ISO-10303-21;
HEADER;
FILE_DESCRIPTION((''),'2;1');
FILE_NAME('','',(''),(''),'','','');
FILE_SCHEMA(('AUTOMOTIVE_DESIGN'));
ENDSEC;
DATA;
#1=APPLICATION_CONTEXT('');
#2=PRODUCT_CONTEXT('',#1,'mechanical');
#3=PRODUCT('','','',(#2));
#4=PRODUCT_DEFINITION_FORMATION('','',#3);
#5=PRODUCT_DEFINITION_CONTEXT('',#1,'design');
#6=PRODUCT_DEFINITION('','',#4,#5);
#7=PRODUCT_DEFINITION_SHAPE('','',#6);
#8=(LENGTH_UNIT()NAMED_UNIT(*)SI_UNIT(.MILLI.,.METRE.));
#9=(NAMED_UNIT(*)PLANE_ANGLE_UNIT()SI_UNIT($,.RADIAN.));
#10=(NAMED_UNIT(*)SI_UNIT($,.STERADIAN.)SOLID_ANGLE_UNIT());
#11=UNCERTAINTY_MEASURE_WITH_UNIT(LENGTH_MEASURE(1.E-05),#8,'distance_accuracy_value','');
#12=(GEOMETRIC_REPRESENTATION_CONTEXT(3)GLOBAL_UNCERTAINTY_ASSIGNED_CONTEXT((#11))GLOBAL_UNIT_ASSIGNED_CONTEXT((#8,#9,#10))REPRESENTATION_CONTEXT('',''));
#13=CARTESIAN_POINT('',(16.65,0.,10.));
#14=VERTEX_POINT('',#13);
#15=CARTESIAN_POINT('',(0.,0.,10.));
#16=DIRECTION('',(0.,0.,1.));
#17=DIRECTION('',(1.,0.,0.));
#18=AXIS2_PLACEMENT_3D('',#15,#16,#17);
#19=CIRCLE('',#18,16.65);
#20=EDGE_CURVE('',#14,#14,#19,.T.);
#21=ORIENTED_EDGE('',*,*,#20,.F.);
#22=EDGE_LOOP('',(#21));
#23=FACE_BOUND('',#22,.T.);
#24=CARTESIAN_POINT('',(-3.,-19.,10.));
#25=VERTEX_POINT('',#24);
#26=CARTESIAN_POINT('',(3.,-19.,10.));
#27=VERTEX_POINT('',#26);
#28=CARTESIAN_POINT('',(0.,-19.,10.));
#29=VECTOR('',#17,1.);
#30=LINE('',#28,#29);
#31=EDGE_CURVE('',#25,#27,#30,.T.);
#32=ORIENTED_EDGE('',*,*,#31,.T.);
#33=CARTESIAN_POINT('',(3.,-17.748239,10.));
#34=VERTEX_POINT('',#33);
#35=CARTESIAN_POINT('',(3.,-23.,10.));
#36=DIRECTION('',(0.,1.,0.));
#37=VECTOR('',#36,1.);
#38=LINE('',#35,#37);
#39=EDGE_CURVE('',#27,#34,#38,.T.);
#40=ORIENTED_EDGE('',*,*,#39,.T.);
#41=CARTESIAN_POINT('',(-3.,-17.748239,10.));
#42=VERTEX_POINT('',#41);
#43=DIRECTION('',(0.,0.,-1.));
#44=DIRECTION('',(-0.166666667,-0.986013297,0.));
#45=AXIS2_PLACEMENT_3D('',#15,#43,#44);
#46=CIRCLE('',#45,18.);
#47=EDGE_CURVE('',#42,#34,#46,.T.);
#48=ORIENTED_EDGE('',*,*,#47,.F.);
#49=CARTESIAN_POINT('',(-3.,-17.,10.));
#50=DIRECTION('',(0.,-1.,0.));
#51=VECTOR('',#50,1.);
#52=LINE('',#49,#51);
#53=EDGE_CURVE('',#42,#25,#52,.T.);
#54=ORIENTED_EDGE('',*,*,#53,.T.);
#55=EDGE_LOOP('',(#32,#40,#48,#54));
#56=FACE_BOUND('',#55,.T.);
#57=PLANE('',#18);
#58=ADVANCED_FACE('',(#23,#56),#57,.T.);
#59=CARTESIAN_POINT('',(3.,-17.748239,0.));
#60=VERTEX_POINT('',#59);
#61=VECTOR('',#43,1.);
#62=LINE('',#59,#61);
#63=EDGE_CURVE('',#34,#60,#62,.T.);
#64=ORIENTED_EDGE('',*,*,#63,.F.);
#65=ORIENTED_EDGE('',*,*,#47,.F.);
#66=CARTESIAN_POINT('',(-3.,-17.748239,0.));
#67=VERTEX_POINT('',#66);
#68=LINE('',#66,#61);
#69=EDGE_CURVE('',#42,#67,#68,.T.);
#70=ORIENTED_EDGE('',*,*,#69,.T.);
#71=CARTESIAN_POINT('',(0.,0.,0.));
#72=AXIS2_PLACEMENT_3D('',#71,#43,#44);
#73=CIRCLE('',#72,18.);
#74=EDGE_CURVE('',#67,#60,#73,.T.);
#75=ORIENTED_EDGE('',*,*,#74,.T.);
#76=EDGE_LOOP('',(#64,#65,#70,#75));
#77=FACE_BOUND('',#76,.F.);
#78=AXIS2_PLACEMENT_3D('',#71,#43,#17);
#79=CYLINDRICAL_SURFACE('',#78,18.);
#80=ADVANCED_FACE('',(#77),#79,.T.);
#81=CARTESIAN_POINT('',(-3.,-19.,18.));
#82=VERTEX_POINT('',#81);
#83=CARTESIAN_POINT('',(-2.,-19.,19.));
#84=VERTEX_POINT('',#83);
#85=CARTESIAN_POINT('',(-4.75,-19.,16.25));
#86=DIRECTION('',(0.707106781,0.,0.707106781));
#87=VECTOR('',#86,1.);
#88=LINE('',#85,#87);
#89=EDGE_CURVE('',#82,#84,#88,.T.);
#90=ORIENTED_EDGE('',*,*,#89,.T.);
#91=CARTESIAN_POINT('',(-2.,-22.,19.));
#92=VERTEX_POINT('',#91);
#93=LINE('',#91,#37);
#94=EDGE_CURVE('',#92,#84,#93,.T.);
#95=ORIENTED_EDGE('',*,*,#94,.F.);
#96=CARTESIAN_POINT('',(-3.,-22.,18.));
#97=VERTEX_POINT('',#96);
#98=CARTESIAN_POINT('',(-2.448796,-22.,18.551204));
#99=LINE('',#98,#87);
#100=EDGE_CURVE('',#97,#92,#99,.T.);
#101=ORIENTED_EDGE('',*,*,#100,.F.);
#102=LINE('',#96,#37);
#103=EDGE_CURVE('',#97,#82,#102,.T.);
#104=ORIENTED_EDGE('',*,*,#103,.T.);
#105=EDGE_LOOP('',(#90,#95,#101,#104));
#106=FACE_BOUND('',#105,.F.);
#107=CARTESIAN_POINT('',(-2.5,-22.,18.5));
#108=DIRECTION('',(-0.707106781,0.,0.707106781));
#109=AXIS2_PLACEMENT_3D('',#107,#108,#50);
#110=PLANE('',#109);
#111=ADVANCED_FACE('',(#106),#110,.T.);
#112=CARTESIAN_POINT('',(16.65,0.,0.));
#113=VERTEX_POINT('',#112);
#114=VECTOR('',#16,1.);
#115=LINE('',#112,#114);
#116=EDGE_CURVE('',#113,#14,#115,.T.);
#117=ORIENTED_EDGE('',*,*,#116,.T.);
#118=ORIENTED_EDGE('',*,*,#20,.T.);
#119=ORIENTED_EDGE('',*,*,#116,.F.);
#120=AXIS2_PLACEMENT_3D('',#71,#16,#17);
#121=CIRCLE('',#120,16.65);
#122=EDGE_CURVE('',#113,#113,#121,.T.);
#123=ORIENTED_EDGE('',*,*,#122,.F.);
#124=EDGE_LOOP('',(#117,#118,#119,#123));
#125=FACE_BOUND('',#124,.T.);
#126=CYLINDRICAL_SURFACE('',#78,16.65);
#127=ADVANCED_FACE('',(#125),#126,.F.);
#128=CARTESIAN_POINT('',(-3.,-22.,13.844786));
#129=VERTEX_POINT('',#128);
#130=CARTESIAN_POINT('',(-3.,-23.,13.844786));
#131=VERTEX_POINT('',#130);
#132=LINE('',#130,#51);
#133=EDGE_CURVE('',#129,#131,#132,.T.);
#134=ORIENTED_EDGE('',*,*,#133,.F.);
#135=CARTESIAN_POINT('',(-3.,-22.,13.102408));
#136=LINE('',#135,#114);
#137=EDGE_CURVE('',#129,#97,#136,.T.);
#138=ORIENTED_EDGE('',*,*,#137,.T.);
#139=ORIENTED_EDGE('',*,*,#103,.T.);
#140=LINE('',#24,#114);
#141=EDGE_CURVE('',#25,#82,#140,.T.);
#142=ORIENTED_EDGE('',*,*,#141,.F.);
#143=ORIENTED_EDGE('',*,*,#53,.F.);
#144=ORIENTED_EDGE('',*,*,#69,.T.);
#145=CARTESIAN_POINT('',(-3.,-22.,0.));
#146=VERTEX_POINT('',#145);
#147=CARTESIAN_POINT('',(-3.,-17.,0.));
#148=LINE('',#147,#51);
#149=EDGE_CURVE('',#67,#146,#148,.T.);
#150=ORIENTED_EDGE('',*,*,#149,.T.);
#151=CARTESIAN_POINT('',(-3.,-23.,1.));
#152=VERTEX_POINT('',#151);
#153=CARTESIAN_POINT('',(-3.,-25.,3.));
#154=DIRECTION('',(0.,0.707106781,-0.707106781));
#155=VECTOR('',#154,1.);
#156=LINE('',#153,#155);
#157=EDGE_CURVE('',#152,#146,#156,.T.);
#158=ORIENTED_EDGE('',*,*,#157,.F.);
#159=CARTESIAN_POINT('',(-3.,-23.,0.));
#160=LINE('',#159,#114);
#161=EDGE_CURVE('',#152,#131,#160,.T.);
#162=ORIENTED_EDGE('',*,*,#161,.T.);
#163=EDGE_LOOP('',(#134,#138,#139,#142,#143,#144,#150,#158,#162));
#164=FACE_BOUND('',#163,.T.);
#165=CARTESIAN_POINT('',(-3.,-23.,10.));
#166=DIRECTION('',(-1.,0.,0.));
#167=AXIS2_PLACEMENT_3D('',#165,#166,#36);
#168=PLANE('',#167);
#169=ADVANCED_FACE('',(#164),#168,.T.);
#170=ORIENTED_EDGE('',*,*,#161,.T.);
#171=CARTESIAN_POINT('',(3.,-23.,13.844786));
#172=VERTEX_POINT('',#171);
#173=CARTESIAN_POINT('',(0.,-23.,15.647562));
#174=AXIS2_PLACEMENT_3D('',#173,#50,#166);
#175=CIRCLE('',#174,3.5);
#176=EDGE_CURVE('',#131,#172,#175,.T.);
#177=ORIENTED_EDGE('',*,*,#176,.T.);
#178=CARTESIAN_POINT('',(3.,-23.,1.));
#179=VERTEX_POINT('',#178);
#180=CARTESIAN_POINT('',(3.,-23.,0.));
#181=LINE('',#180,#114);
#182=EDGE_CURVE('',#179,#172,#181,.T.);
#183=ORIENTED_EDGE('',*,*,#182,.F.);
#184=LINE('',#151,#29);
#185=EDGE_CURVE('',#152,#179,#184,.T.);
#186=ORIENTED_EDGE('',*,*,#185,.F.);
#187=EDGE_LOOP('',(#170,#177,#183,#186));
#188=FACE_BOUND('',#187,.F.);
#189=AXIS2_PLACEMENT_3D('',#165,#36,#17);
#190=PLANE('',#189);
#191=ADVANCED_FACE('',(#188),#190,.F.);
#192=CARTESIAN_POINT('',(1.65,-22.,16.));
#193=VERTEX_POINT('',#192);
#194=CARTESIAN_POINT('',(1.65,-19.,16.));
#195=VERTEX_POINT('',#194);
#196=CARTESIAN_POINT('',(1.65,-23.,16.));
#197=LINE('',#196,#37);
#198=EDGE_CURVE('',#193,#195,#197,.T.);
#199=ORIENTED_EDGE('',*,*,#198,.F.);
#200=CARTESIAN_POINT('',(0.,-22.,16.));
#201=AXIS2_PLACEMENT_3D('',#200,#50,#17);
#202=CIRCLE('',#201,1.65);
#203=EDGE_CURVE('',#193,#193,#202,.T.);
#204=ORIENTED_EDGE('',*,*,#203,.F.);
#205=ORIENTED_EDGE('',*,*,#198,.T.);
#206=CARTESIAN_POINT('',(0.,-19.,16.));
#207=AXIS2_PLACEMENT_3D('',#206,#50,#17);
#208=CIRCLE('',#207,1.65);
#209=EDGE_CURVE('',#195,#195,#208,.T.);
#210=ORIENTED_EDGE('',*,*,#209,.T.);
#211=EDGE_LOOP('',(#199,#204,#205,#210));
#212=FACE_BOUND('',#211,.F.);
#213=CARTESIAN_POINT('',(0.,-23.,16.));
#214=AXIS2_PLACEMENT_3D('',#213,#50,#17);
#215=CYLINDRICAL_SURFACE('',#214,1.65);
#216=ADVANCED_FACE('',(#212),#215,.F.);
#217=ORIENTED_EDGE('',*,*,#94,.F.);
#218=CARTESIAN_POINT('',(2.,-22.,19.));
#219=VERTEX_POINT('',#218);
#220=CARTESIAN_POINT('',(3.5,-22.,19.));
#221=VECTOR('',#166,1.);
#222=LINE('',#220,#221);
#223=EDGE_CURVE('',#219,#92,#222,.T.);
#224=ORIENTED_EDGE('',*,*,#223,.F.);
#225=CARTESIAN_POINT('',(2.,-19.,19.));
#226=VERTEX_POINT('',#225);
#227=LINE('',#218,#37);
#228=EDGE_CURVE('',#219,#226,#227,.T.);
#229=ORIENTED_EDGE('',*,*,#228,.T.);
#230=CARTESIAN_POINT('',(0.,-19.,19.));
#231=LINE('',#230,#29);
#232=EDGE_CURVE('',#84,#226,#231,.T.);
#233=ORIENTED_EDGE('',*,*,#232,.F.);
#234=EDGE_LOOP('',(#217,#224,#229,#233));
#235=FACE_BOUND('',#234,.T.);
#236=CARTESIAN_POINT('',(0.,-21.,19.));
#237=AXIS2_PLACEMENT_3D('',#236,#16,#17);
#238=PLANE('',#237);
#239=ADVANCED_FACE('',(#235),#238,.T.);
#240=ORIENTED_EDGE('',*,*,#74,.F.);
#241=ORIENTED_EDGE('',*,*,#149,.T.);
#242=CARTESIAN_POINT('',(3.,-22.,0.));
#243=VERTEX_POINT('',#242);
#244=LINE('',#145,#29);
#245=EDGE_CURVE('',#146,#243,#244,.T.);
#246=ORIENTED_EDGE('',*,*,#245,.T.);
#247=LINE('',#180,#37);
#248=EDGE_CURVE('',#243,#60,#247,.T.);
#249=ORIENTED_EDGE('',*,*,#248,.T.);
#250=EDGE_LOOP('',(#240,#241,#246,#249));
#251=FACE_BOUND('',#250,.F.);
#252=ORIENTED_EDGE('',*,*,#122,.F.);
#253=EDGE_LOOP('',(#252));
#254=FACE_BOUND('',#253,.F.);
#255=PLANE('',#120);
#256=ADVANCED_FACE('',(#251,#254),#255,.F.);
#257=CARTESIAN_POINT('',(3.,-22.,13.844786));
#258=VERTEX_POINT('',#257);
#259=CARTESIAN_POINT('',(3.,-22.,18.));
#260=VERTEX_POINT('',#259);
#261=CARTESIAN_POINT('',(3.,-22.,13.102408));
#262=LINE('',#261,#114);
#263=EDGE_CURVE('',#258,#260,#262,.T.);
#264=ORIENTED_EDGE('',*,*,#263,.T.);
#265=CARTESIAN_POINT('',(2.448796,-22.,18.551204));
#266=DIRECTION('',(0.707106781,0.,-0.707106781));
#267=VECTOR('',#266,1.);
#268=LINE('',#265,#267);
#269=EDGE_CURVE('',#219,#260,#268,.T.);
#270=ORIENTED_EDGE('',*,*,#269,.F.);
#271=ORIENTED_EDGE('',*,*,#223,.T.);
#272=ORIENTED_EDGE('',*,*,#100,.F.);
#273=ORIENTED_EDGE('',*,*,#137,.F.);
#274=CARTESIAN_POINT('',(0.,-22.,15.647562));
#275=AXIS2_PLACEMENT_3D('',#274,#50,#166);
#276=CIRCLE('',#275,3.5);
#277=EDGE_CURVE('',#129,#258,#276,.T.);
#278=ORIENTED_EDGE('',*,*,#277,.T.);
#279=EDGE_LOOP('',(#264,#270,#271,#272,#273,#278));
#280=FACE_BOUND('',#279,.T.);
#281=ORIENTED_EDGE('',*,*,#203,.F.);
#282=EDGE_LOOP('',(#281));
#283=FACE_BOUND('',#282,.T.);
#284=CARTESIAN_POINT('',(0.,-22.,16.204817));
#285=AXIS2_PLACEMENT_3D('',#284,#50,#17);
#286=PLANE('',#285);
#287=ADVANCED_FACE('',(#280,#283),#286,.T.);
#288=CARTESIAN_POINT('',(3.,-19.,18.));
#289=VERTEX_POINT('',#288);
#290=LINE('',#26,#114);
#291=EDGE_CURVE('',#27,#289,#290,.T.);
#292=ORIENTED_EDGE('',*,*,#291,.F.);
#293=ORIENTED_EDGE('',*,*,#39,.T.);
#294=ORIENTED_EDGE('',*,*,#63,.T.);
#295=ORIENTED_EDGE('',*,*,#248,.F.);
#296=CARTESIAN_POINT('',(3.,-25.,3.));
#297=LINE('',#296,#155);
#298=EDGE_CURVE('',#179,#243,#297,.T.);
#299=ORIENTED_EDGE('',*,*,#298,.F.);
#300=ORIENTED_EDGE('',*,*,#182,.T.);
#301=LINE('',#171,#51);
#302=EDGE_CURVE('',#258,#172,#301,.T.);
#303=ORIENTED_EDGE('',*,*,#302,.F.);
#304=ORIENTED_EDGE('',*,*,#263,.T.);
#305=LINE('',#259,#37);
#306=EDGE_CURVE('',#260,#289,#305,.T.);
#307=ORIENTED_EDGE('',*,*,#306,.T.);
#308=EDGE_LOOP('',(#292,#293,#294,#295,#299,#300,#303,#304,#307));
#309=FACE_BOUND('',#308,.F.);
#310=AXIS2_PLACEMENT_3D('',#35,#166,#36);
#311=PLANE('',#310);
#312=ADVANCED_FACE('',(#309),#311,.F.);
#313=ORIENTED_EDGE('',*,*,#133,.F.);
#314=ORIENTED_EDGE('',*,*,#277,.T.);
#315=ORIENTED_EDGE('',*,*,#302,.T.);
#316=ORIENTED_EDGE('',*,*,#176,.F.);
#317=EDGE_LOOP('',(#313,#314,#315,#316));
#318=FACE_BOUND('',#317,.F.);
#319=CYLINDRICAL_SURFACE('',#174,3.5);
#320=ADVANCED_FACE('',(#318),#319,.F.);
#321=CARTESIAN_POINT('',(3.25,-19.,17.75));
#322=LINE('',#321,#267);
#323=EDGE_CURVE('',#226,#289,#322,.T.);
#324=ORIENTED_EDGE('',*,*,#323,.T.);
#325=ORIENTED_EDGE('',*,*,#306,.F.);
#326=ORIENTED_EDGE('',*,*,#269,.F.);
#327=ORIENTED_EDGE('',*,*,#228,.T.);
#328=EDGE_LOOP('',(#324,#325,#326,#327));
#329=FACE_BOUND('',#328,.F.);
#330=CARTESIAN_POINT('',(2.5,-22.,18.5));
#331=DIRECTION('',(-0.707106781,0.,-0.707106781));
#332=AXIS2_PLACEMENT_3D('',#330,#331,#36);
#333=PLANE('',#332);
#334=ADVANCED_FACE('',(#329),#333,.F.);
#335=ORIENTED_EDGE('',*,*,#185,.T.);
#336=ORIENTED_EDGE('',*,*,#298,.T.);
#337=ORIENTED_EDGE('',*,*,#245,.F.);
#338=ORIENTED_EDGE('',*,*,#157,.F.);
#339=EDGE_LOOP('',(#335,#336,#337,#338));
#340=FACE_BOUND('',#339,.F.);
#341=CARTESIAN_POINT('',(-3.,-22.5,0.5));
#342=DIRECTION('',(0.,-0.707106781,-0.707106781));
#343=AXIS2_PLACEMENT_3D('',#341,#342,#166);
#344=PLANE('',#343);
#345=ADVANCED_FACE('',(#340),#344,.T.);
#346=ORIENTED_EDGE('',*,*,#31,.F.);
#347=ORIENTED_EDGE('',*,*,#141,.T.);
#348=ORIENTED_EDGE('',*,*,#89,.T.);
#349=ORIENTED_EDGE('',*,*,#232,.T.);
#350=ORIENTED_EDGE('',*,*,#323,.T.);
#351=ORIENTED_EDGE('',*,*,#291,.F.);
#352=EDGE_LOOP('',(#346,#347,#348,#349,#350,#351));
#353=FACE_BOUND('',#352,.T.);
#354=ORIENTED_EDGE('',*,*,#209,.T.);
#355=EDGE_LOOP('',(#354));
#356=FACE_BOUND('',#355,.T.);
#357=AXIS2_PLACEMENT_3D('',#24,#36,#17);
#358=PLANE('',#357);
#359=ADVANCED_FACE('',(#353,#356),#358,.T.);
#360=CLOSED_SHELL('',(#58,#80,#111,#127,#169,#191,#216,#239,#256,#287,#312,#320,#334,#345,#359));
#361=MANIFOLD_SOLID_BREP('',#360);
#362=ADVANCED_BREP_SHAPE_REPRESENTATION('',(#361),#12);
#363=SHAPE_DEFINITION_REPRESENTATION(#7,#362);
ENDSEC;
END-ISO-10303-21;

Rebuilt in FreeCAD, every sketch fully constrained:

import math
import FreeCAD as App
import Part
import Sketcher
from FreeCAD import Vector


def edges_at(feature, points):
    """Names of the edges that pass closest to the given points."""
    edges = feature.Shape.Edges
    near = lambda p: min(range(len(edges)), key=lambda i: edges[i].distToShape(Part.Vertex(*p))[0])
    return sorted({f"Edge{near(p) + 1}" for p in points})


def add_polygon(sketch, points):
    """Adds a closed chain of lines whose ends are joined by coincident constraints."""
    first, n = sketch.GeometryCount, len(points)
    for a, b in zip(points, points[1:] + points[:1]):
        sketch.addGeometry(Part.LineSegment(App.Vector(*a, 0), App.Vector(*b, 0)), False)
    for i in range(n):
        sketch.addConstraint(Sketcher.Constraint("Coincident", first + i, 2, first + (i + 1) % n, 1))

doc = App.newDocument("Part")
body = doc.addObject("PartDesign::Body", "Body")

sketch1 = body.newObject("Sketcher::SketchObject", "Sketch")
sketch1.AttachmentSupport = (doc.getObject("XY_Plane"), [""])
sketch1.MapMode = "FlatFace"
sketch1.addGeometry(Part.Circle(Vector(0, 0, 0), Vector(0, 0, 1), 18), False)
sketch1.addGeometry(Part.Circle(Vector(0, 0, 0), Vector(0, 0, 1), 17), False)
sketch1.addConstraint(Sketcher.Constraint("Coincident", 0, 3, -1, 1))
sketch1.addConstraint(Sketcher.Constraint("Coincident", 1, 3, -1, 1))
sketch1.addConstraint(Sketcher.Constraint("Diameter", 0, 36.0))
sketch1.addConstraint(Sketcher.Constraint("Diameter", 1, 33.3))
pad1 = body.newObject("PartDesign::Pad", "Pad")
pad1.Profile = sketch1
pad1.Length = 10

sketch2 = body.newObject("Sketcher::SketchObject", "Sketch001")
sketch2.AttachmentSupport = (doc.getObject("XY_Plane"), [""])
sketch2.MapMode = "FlatFace"
sketch2.addGeometry(Part.ArcOfCircle(Part.Circle(Vector(0, 0, 0), Vector(0, 0, 1), 17), math.radians(-100), math.radians(-80)), False)
sketch2.addGeometry(Part.LineSegment(Vector(3, -17, 0), Vector(3, -23, 0)), False)
sketch2.addGeometry(Part.LineSegment(Vector(3, -23, 0), Vector(-3, -23, 0)), False)
sketch2.addGeometry(Part.LineSegment(Vector(-3, -23, 0), Vector(-3, -17, 0)), False)
sketch2.addConstraint(Sketcher.Constraint("Coincident", 0, 2, 1, 1))
sketch2.addConstraint(Sketcher.Constraint("Coincident", 1, 2, 2, 1))
sketch2.addConstraint(Sketcher.Constraint("Coincident", 2, 2, 3, 1))
sketch2.addConstraint(Sketcher.Constraint("Coincident", 3, 2, 0, 1))
sketch2.addConstraint(Sketcher.Constraint("Vertical", 1))
sketch2.addConstraint(Sketcher.Constraint("Horizontal", 2))
sketch2.addConstraint(Sketcher.Constraint("Vertical", 3))
sketch2.addConstraint(Sketcher.Constraint("Symmetric", 0, 2, 3, 2, -2))
sketch2.addConstraint(Sketcher.Constraint("Equal", 2, 1))
sketch2.addConstraint(Sketcher.Constraint("DistanceX", 2, 2, 2, 1, 6.0))
sketch2.addConstraint(Sketcher.Constraint("DistanceY", 0, 2, -1, 1, 17.0))
sketch2.addConstraint(Sketcher.Constraint("Radius", 0, 17.262644))
pad2 = body.newObject("PartDesign::Pad", "Pad001")
pad2.Profile = sketch2
pad2.Length = 10

sketch3 = body.newObject("Sketcher::SketchObject", "Sketch002")
sketch3.AttachmentSupport = (doc.getObject("XY_Plane"), [""])
sketch3.MapMode = "FlatFace"
sketch3.AttachmentOffset = App.Placement(Vector(0, 0, 10), App.Rotation())
add_polygon(sketch3, [(-3, -19), (-3, -23), (3, -23), (3, -19)])
sketch3.addConstraint(Sketcher.Constraint("Vertical", 0))
sketch3.addConstraint(Sketcher.Constraint("Horizontal", 1))
sketch3.addConstraint(Sketcher.Constraint("Vertical", 2))
sketch3.addConstraint(Sketcher.Constraint("Horizontal", 3))
sketch3.addConstraint(Sketcher.Constraint("DistanceX", 1, 1, 1, 2, 6.0))
sketch3.addConstraint(Sketcher.Constraint("DistanceY", 0, 2, 0, 1, 4.0))
sketch3.addConstraint(Sketcher.Constraint("DistanceX", 0, 2, -1, 1, 3.0))
sketch3.addConstraint(Sketcher.Constraint("DistanceY", 0, 2, -1, 1, 23.0))
pad3 = body.newObject("PartDesign::Pad", "Pad002")
pad3.Profile = sketch3
pad3.Length = 9

sketch4 = body.newObject("Sketcher::SketchObject", "Sketch003")
sketch4.AttachmentSupport = (doc.getObject("XZ_Plane"), [""])
sketch4.MapMode = "FlatFace"
sketch4.AttachmentOffset = App.Placement(Vector(0, 0, 23), App.Rotation())
sketch4.addGeometry(Part.Circle(Vector(0, 16, 0), Vector(0, 0, 1), 1.6), False)
sketch4.addConstraint(Sketcher.Constraint("PointOnObject", 0, 3, -2))
sketch4.addConstraint(Sketcher.Constraint("Diameter", 0, 3.3))
sketch4.addConstraint(Sketcher.Constraint("DistanceY", -1, 1, 0, 3, 16.0))
pocket1 = body.newObject("PartDesign::Pocket", "Pocket")
pocket1.Profile = sketch4
pocket1.Length = 5

sketch5 = body.newObject("Sketcher::SketchObject", "Sketch004")
sketch5.AttachmentSupport = (doc.getObject("XZ_Plane"), [""])
sketch5.MapMode = "FlatFace"
sketch5.AttachmentOffset = App.Placement(Vector(0, 0, 23), App.Rotation())
sketch5.addGeometry(Part.ArcOfCircle(Part.Circle(Vector(0, 15.6, 0), Vector(0, 0, 1), 3.5), math.radians(180), math.radians(360)), False)
sketch5.addGeometry(Part.LineSegment(Vector(3.5, 15.6, 0), Vector(3.5, 19, 0)), False)
sketch5.addGeometry(Part.LineSegment(Vector(3.5, 19, 0), Vector(-3.5, 19, 0)), False)
sketch5.addGeometry(Part.LineSegment(Vector(-3.5, 19, 0), Vector(-3.5, 15.6, 0)), False)
sketch5.addConstraint(Sketcher.Constraint("Tangent", 0, 2, 1, 1))
sketch5.addConstraint(Sketcher.Constraint("Coincident", 1, 2, 2, 1))
sketch5.addConstraint(Sketcher.Constraint("Coincident", 2, 2, 3, 1))
sketch5.addConstraint(Sketcher.Constraint("Tangent", 3, 2, 0, 1))
sketch5.addConstraint(Sketcher.Constraint("Vertical", 1))
sketch5.addConstraint(Sketcher.Constraint("Horizontal", 2))
sketch5.addConstraint(Sketcher.Constraint("Vertical", 3))
sketch5.addConstraint(Sketcher.Constraint("PointOnObject", 0, 3, -2))
sketch5.addConstraint(Sketcher.Constraint("Radius", 0, 3.5))
sketch5.addConstraint(Sketcher.Constraint("DistanceY", -1, 1, 1, 2, 19.0))
sketch5.addConstraint(Sketcher.Constraint("DistanceY", 1, 1, 1, 2, 3.352438))
pocket2 = body.newObject("PartDesign::Pocket", "Pocket001")
pocket2.Profile = sketch5
pocket2.Length = 1
doc.recompute()

chamfer = body.newObject("PartDesign::Chamfer", "Chamfer")
chamfer.Base = (pocket2, edges_at(pocket2, [(3, -20.5, 19), (-3, -20.5, 19)]))
chamfer.Size = 1
doc.recompute()

chamfer2 = body.newObject("PartDesign::Chamfer", "Chamfer001")
chamfer2.Base = (chamfer, edges_at(chamfer, [(0, -23, 0)]))
chamfer2.Size = 1

doc.recompute()
